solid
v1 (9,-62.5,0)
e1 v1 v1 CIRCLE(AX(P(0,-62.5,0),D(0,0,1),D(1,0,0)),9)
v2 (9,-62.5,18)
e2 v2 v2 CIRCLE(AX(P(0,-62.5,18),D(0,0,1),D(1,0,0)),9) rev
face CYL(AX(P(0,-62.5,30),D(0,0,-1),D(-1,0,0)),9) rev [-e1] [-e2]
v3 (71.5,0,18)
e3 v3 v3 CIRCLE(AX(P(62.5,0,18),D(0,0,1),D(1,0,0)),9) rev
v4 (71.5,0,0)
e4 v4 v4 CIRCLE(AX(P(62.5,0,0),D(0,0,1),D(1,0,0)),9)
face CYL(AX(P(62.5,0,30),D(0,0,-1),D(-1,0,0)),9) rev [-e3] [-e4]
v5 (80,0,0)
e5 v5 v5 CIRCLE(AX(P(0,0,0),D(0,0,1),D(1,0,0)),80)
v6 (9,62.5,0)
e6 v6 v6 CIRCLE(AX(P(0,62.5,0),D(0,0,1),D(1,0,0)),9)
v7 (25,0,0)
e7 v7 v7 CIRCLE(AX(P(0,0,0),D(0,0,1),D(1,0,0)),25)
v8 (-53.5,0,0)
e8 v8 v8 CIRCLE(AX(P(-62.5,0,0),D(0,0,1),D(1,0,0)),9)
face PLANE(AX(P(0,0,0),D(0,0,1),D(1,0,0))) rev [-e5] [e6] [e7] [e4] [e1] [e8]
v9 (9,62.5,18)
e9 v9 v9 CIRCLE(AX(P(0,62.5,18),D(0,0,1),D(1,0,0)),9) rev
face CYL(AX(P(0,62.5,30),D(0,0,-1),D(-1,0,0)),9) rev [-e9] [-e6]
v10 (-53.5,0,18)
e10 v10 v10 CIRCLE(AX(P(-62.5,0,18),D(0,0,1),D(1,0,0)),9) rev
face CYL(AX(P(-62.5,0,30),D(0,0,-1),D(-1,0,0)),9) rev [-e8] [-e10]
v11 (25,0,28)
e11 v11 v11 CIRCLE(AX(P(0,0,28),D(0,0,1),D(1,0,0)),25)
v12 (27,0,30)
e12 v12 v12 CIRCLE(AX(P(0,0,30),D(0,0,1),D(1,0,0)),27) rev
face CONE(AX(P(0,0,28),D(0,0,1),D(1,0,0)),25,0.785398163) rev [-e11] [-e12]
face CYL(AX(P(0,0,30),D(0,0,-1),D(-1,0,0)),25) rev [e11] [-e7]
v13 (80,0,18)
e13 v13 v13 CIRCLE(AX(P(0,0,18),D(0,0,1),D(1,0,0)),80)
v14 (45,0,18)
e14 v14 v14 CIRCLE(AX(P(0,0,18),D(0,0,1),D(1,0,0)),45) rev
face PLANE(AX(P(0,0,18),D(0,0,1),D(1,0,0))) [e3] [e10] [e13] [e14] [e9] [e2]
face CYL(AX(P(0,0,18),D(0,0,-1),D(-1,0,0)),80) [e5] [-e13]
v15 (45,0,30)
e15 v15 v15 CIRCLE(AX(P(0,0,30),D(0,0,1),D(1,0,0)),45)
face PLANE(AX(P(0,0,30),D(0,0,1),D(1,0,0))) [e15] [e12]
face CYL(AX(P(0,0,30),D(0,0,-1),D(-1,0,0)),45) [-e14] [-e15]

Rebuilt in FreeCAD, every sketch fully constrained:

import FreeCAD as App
import Part
import Sketcher
from FreeCAD import Vector


def edges_at(feature, points):
    """Names of the edges that pass closest to the given points."""
    edges = feature.Shape.Edges
    near = lambda p: min(range(len(edges)), key=lambda i: edges[i].distToShape(Part.Vertex(*p))[0])
    return sorted({f"Edge{near(p) + 1}" for p in points})

doc = App.newDocument("Part")
params = doc.addObject("Spreadsheet::Sheet", "Params")
for row, (alias, value) in enumerate([
    ("sketch1_diameter", "160 mm"),
    ("pad1_length", "18 mm"),
    ("sketch2_diameter", "90 mm"),
    ("pad2_length", "30 mm"),
    ("sketch3_diameter", "50 mm"),
    ("sketch4_diameter", "18 mm"),
    ("chamfer_size", "2 mm"),
], start=1):
    params.set(f"A{row}", alias)
    params.set(f"B{row}", "=" + value)
    params.setAlias(f"B{row}", alias)

body = doc.addObject("PartDesign::Body", "Body")

# Sketch on XY plane
sketch1 = body.newObject("Sketcher::SketchObject", "Sketch")
sketch1.AttachmentSupport = (doc.getObject("XY_Plane"), [""])
sketch1.MapMode = "FlatFace"
sketch1.addGeometry(Part.Circle(Vector(0, 0, 0), Vector(0, 0, 1), 80), False)
sketch1.addConstraint([
    Sketcher.Constraint("Coincident", 0, 3, -1, 1),
    Sketcher.Constraint("Diameter", 0, 160.0),
])
sketch1.setExpression("Constraints[1]", "Params.sketch1_diameter")
pad1 = body.newObject("PartDesign::Pad", "Pad")
pad1.Profile = sketch1
pad1.setExpression("Length", "Params.pad1_length")

# Sketch on XY plane
sketch2 = body.newObject("Sketcher::SketchObject", "Sketch001")
sketch2.AttachmentSupport = (doc.getObject("XY_Plane"), [""])
sketch2.MapMode = "FlatFace"
sketch2.addGeometry(Part.Circle(Vector(0, 0, 0), Vector(0, 0, 1), 45), False)
sketch2.addConstraint([
    Sketcher.Constraint("Coincident", 0, 3, -1, 1),
    Sketcher.Constraint("Diameter", 0, 90.0),
])
sketch2.setExpression("Constraints[1]", "Params.sketch2_diameter")
pad2 = body.newObject("PartDesign::Pad", "Pad001")
pad2.Profile = sketch2
pad2.setExpression("Length", "Params.pad2_length")

# Sketch on XY plane
sketch3 = body.newObject("Sketcher::SketchObject", "Sketch002")
sketch3.AttachmentSupport = (doc.getObject("XY_Plane"), [""])
sketch3.MapMode = "FlatFace"
sketch3.addGeometry(Part.Circle(Vector(0, 0, 0), Vector(0, 0, 1), 25), False)
sketch3.addConstraint([
    Sketcher.Constraint("Coincident", 0, 3, -1, 1),
    Sketcher.Constraint("Diameter", 0, 50.0),
])
sketch3.setExpression("Constraints[1]", "Params.sketch3_diameter")
pocket1 = body.newObject("PartDesign::Pocket", "Pocket")
pocket1.Profile = sketch3
pocket1.Type = "ThroughAll"
pocket1.Reversed = True

# Sketch on XY plane
sketch4 = body.newObject("Sketcher::SketchObject", "Sketch003")
sketch4.AttachmentSupport = (doc.getObject("XY_Plane"), [""])
sketch4.MapMode = "FlatFace"
sketch4.addGeometry([
    Part.Circle(Vector(62, 0, 0), Vector(0, 0, 1), 9),
    Part.Circle(Vector(0, 62, 0), Vector(0, 0, 1), 9),
    Part.Circle(Vector(-62, 0, 0), Vector(0, 0, 1), 9),
    Part.Circle(Vector(0, -62, 0), Vector(0, 0, 1), 9),
], False)
sketch4.addConstraint([
    Sketcher.Constraint("Equal", 0, 1),
    Sketcher.Constraint("Equal", 1, 2),
    Sketcher.Constraint("Equal", 2, 3),
    Sketcher.Constraint("Symmetric", 0, 3, 2, 3, -1, 1),
    Sketcher.Constraint("Symmetric", 1, 3, 3, 3, -1, 1),
    Sketcher.Constraint("PointOnObject", 0, 3, -1),
    Sketcher.Constraint("PointOnObject", 1, 3, -2),
    Sketcher.Constraint("Diameter", 0, 18.0),
    Sketcher.Constraint("DistanceX", 2, 3, 0, 3, 125.0),
    Sketcher.Constraint("DistanceY", 3, 3, 1, 3, 125.0),
])
sketch4.setExpression("Constraints[7]", "Params.sketch4_diameter")
pocket2 = body.newObject("PartDesign::Pocket", "Pocket001")
pocket2.Profile = sketch4
pocket2.Type = "ThroughAll"
pocket2.Reversed = True
doc.recompute()

chamfer = body.newObject("PartDesign::Chamfer", "Chamfer")
chamfer.Base = (pocket2, edges_at(pocket2, [(-25, 0, 30)]))
chamfer.setExpression("Size", "Params.chamfer_size")

doc.recompute()
